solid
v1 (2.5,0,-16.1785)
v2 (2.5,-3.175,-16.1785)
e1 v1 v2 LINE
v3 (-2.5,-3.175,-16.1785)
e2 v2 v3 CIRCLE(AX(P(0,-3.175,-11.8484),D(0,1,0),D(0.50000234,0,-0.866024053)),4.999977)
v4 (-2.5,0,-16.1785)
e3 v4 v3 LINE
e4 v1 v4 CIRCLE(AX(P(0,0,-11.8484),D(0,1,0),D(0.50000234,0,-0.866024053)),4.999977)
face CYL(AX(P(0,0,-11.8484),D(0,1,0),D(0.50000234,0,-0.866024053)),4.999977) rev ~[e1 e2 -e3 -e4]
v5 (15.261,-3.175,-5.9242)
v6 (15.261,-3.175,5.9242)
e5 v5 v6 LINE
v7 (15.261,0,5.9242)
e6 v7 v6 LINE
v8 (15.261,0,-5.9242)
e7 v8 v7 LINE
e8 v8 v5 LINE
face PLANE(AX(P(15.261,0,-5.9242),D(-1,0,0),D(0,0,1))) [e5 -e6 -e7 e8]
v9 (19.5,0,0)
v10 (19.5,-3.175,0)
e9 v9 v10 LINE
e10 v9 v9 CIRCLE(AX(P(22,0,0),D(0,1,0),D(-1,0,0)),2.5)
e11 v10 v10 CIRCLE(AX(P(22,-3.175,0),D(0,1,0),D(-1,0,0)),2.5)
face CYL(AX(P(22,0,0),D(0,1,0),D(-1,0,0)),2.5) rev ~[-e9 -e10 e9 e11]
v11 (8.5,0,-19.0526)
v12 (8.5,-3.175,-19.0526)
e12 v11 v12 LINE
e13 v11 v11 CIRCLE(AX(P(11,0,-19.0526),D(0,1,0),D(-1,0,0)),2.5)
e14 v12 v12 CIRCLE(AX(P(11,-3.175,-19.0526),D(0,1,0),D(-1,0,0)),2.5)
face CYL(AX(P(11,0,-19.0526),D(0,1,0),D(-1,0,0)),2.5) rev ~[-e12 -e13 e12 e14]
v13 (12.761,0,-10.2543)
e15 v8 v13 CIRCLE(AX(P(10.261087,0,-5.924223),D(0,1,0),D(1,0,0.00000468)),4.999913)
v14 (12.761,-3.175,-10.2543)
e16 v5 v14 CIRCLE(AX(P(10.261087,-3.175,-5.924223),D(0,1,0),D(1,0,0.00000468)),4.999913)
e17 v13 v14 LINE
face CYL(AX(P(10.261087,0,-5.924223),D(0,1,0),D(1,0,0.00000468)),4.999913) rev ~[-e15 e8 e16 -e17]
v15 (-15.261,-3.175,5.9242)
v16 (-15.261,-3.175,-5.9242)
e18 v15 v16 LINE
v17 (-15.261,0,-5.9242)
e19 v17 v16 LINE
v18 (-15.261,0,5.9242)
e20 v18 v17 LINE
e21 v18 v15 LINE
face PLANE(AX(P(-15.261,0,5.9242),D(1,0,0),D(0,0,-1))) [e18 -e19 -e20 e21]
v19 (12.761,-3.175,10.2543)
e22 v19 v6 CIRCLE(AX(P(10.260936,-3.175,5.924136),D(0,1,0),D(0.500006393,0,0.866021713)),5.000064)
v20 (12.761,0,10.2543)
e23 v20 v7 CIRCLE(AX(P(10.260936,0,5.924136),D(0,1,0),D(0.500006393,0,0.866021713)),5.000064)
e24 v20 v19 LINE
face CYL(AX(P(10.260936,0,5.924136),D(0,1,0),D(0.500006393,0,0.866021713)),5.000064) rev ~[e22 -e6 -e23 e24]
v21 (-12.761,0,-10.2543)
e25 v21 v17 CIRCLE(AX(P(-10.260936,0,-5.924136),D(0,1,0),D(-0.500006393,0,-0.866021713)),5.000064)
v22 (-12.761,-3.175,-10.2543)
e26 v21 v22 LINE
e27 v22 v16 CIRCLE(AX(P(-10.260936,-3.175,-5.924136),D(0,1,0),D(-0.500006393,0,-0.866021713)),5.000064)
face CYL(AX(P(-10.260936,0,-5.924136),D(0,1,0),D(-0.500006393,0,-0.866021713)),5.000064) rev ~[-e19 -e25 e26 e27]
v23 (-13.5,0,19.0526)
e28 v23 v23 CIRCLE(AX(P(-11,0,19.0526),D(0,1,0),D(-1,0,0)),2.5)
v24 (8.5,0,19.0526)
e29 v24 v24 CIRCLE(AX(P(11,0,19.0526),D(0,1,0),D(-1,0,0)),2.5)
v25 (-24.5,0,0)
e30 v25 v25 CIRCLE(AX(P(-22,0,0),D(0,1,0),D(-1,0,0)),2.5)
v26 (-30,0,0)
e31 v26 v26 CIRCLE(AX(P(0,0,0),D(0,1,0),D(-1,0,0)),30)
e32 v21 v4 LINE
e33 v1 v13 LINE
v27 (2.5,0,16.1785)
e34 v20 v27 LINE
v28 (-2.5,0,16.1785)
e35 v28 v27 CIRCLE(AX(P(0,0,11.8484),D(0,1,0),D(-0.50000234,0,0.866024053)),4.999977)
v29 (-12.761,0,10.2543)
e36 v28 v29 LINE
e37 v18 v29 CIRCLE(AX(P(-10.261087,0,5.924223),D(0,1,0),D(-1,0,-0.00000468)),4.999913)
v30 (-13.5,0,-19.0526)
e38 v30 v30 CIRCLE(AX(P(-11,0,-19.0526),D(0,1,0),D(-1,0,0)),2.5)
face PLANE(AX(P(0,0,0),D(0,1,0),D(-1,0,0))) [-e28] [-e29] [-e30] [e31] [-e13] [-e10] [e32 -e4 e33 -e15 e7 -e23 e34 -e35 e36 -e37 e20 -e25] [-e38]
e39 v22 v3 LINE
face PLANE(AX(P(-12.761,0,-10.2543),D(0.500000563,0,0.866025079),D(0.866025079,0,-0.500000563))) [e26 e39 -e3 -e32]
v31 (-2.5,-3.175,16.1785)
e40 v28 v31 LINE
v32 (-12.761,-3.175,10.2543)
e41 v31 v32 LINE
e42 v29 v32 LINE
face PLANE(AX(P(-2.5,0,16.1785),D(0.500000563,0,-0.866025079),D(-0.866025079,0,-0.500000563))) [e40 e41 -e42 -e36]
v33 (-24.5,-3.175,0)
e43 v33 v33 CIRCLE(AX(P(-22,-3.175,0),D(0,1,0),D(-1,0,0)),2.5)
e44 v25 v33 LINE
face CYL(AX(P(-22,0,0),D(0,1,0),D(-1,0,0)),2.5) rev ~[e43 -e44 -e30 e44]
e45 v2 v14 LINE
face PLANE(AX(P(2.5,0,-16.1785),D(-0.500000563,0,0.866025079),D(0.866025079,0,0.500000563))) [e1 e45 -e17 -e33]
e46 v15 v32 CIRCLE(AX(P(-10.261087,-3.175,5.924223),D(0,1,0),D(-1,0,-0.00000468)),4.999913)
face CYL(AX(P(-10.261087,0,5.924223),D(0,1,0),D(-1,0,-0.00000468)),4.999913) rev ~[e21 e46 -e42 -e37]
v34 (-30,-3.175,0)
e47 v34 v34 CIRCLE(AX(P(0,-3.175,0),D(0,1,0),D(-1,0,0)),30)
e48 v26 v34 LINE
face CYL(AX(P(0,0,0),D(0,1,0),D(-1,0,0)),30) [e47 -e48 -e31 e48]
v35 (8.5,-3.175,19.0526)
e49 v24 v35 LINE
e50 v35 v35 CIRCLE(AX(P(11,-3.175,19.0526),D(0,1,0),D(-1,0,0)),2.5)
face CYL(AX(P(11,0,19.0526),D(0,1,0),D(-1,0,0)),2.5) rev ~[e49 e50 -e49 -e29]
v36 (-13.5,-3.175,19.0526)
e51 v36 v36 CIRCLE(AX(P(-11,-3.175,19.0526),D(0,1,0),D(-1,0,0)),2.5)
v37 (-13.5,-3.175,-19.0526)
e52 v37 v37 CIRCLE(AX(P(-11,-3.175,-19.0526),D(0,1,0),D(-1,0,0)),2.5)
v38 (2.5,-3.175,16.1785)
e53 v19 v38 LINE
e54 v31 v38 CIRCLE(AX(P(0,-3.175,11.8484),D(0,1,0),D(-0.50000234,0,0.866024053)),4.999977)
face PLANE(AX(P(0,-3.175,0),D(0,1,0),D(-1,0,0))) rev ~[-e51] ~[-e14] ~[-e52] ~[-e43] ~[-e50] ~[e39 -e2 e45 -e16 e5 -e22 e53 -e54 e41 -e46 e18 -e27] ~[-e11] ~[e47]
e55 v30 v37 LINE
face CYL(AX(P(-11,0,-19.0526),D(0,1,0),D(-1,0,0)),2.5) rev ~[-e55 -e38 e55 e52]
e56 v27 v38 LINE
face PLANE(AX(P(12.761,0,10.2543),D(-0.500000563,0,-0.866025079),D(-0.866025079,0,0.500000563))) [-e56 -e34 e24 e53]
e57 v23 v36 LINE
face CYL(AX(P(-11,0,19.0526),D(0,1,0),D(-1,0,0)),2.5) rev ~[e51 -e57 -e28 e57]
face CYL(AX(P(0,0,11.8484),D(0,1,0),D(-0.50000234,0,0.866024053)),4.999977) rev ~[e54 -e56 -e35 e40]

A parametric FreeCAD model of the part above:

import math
import FreeCAD as App
import Part
import Sketcher
Q = App.Units.Quantity

doc = App.newDocument("Part")
body = doc.addObject("PartDesign::Body", "Body")

sketch1 = body.newObject("Sketcher::SketchObject", "Sketch")
sketch1.AttachmentSupport = (doc.getObject("XZ_Plane"), [""])
sketch1.MapMode = "FlatFace"
sketch1.addGeometry(Part.Circle(App.Vector(0, 0, 0), App.Vector(0, 0, 1), 30), False)
sketch1.addGeometry(Part.Circle(App.Vector(11, -19.1, 0), App.Vector(0, 0, 1), 2.5), False)
sketch1.addGeometry(Part.Circle(App.Vector(-11, -19.1, 0), App.Vector(0, 0, 1), 2.5), False)
sketch1.addGeometry(Part.Circle(App.Vector(22, 0, 0), App.Vector(0, 0, 1), 2.5), False)
sketch1.addGeometry(Part.Circle(App.Vector(11, 19.1, 0), App.Vector(0, 0, 1), 2.5), False)
sketch1.addGeometry(Part.ArcOfCircle(Part.Circle(App.Vector(0, -11.8, 0), App.Vector(0, 0, 1), 5), math.radians(-120), math.radians(-60)), False)
sketch1.addGeometry(Part.LineSegment(App.Vector(2.5, -16.2, 0), App.Vector(12.8, -10.3, 0)), False)
sketch1.addGeometry(Part.ArcOfCircle(Part.Circle(App.Vector(10.3, -5.9, 0), App.Vector(0, 0, 1), 5), math.radians(-60), math.radians(0)), False)
sketch1.addGeometry(Part.LineSegment(App.Vector(15.3, -5.9, 0), App.Vector(15.3, 5.9, 0)), False)
sketch1.addGeometry(Part.ArcOfCircle(Part.Circle(App.Vector(10.3, 5.9, 0), App.Vector(0, 0, 1), 5), math.radians(0), math.radians(60)), False)
sketch1.addGeometry(Part.LineSegment(App.Vector(12.8, 10.3, 0), App.Vector(2.5, 16.2, 0)), False)
sketch1.addGeometry(Part.ArcOfCircle(Part.Circle(App.Vector(0, 11.8, 0), App.Vector(0, 0, 1), 5), math.radians(60), math.radians(120)), False)
sketch1.addGeometry(Part.LineSegment(App.Vector(-2.5, 16.2, 0), App.Vector(-12.8, 10.3, 0)), False)
sketch1.addGeometry(Part.ArcOfCircle(Part.Circle(App.Vector(-10.3, 5.9, 0), App.Vector(0, 0, 1), 5), math.radians(120), math.radians(180)), False)
sketch1.addGeometry(Part.LineSegment(App.Vector(-15.3, 5.9, 0), App.Vector(-15.3, -5.9, 0)), False)
sketch1.addGeometry(Part.ArcOfCircle(Part.Circle(App.Vector(-10.3, -5.9, 0), App.Vector(0, 0, 1), 5), math.radians(180), math.radians(240)), False)
sketch1.addGeometry(Part.LineSegment(App.Vector(-12.8, -10.3, 0), App.Vector(-2.5, -16.2, 0)), False)
sketch1.addGeometry(Part.Circle(App.Vector(-22, 0, 0), App.Vector(0, 0, 1), 2.5), False)
sketch1.addGeometry(Part.Circle(App.Vector(-11, 19.1, 0), App.Vector(0, 0, 1), 2.5), False)
sketch1.addConstraint(Sketcher.Constraint("Tangent", 5, 2, 6, 1))
sketch1.addConstraint(Sketcher.Constraint("Tangent", 6, 2, 7, 1))
sketch1.addConstraint(Sketcher.Constraint("Tangent", 7, 2, 8, 1))
sketch1.addConstraint(Sketcher.Constraint("Tangent", 8, 2, 9, 1))
sketch1.addConstraint(Sketcher.Constraint("Tangent", 9, 2, 10, 1))
sketch1.addConstraint(Sketcher.Constraint("Tangent", 10, 2, 11, 1))
sketch1.addConstraint(Sketcher.Constraint("Tangent", 11, 2, 12, 1))
sketch1.addConstraint(Sketcher.Constraint("Tangent", 12, 2, 13, 1))
sketch1.addConstraint(Sketcher.Constraint("Tangent", 13, 2, 14, 1))
sketch1.addConstraint(Sketcher.Constraint("Tangent", 14, 2, 15, 1))
sketch1.addConstraint(Sketcher.Constraint("Tangent", 15, 2, 16, 1))
sketch1.addConstraint(Sketcher.Constraint("Tangent", 16, 2, 5, 1))
sketch1.addConstraint(Sketcher.Constraint("Vertical", 8))
sketch1.addConstraint(Sketcher.Constraint("Vertical", 14))
sketch1.addConstraint(Sketcher.Constraint("Coincident", 0, 3, -1, 1))
sketch1.addConstraint(Sketcher.Constraint("Equal", 1, 2))
sketch1.addConstraint(Sketcher.Constraint("Equal", 2, 3))
sketch1.addConstraint(Sketcher.Constraint("Equal", 3, 4))
sketch1.addConstraint(Sketcher.Constraint("Equal", 5, 7))
sketch1.addConstraint(Sketcher.Constraint("Equal", 7, 9))
sketch1.addConstraint(Sketcher.Constraint("Equal", 9, 11))
sketch1.addConstraint(Sketcher.Constraint("Equal", 11, 13))
sketch1.addConstraint(Sketcher.Constraint("Equal", 13, 15))
sketch1.addConstraint(Sketcher.Constraint("Equal", 4, 17))
sketch1.addConstraint(Sketcher.Constraint("Equal", 17, 18))
sketch1.addConstraint(Sketcher.Constraint("Symmetric", 2, 3, 4, 3, -1, 1))
sketch1.addConstraint(Sketcher.Constraint("Symmetric", 5, 3, 11, 3, -1, 1))
sketch1.addConstraint(Sketcher.Constraint("Symmetric", 7, 3, 13, 3, -1, 1))
sketch1.addConstraint(Sketcher.Constraint("Symmetric", 3, 3, 17, 3, -1, 1))
sketch1.addConstraint(Sketcher.Constraint("Symmetric", 1, 3, 18, 3, -1, 1))
sketch1.addConstraint(Sketcher.Constraint("Symmetric", 1, 3, 2, 3, -2))
sketch1.addConstraint(Sketcher.Constraint("Symmetric", 10, 2, 11, 2, -2))
sketch1.addConstraint(Sketcher.Constraint("PointOnObject", 3, 3, -1))
sketch1.addConstraint(Sketcher.Constraint("Parallel", 10, 16))
sketch1.addConstraint(Sketcher.Constraint("Diameter", 0, Q("60 mm")))
sketch1.addConstraint(Sketcher.Constraint("Diameter", 1, Q("5 mm")))
sketch1.addConstraint(Sketcher.Constraint("Radius", 5, Q("5 mm")))
sketch1.addConstraint(Sketcher.Constraint("Angle", 6, Q("30 deg")))
sketch1.addConstraint(Sketcher.Constraint("DistanceX", -1, 1, 3, 3, Q("22 mm")))
sketch1.addConstraint(Sketcher.Constraint("DistanceX", 2, 3, 1, 3, Q("22 mm")))
sketch1.addConstraint(Sketcher.Constraint("DistanceY", 8, 1, 8, 2, Q("11.8484 mm")))
sketch1.addConstraint(Sketcher.Constraint("DistanceX", -1, 1, 7, 3, Q("10.261 mm")))
sketch1.addConstraint(Sketcher.Constraint("DistanceY", 5, 3, 4, 3, Q("30.901 mm")))
pad1 = body.newObject("PartDesign::Pad", "Pad")
pad1.Profile = sketch1
pad1.Length = 3.175

doc.recompute()
